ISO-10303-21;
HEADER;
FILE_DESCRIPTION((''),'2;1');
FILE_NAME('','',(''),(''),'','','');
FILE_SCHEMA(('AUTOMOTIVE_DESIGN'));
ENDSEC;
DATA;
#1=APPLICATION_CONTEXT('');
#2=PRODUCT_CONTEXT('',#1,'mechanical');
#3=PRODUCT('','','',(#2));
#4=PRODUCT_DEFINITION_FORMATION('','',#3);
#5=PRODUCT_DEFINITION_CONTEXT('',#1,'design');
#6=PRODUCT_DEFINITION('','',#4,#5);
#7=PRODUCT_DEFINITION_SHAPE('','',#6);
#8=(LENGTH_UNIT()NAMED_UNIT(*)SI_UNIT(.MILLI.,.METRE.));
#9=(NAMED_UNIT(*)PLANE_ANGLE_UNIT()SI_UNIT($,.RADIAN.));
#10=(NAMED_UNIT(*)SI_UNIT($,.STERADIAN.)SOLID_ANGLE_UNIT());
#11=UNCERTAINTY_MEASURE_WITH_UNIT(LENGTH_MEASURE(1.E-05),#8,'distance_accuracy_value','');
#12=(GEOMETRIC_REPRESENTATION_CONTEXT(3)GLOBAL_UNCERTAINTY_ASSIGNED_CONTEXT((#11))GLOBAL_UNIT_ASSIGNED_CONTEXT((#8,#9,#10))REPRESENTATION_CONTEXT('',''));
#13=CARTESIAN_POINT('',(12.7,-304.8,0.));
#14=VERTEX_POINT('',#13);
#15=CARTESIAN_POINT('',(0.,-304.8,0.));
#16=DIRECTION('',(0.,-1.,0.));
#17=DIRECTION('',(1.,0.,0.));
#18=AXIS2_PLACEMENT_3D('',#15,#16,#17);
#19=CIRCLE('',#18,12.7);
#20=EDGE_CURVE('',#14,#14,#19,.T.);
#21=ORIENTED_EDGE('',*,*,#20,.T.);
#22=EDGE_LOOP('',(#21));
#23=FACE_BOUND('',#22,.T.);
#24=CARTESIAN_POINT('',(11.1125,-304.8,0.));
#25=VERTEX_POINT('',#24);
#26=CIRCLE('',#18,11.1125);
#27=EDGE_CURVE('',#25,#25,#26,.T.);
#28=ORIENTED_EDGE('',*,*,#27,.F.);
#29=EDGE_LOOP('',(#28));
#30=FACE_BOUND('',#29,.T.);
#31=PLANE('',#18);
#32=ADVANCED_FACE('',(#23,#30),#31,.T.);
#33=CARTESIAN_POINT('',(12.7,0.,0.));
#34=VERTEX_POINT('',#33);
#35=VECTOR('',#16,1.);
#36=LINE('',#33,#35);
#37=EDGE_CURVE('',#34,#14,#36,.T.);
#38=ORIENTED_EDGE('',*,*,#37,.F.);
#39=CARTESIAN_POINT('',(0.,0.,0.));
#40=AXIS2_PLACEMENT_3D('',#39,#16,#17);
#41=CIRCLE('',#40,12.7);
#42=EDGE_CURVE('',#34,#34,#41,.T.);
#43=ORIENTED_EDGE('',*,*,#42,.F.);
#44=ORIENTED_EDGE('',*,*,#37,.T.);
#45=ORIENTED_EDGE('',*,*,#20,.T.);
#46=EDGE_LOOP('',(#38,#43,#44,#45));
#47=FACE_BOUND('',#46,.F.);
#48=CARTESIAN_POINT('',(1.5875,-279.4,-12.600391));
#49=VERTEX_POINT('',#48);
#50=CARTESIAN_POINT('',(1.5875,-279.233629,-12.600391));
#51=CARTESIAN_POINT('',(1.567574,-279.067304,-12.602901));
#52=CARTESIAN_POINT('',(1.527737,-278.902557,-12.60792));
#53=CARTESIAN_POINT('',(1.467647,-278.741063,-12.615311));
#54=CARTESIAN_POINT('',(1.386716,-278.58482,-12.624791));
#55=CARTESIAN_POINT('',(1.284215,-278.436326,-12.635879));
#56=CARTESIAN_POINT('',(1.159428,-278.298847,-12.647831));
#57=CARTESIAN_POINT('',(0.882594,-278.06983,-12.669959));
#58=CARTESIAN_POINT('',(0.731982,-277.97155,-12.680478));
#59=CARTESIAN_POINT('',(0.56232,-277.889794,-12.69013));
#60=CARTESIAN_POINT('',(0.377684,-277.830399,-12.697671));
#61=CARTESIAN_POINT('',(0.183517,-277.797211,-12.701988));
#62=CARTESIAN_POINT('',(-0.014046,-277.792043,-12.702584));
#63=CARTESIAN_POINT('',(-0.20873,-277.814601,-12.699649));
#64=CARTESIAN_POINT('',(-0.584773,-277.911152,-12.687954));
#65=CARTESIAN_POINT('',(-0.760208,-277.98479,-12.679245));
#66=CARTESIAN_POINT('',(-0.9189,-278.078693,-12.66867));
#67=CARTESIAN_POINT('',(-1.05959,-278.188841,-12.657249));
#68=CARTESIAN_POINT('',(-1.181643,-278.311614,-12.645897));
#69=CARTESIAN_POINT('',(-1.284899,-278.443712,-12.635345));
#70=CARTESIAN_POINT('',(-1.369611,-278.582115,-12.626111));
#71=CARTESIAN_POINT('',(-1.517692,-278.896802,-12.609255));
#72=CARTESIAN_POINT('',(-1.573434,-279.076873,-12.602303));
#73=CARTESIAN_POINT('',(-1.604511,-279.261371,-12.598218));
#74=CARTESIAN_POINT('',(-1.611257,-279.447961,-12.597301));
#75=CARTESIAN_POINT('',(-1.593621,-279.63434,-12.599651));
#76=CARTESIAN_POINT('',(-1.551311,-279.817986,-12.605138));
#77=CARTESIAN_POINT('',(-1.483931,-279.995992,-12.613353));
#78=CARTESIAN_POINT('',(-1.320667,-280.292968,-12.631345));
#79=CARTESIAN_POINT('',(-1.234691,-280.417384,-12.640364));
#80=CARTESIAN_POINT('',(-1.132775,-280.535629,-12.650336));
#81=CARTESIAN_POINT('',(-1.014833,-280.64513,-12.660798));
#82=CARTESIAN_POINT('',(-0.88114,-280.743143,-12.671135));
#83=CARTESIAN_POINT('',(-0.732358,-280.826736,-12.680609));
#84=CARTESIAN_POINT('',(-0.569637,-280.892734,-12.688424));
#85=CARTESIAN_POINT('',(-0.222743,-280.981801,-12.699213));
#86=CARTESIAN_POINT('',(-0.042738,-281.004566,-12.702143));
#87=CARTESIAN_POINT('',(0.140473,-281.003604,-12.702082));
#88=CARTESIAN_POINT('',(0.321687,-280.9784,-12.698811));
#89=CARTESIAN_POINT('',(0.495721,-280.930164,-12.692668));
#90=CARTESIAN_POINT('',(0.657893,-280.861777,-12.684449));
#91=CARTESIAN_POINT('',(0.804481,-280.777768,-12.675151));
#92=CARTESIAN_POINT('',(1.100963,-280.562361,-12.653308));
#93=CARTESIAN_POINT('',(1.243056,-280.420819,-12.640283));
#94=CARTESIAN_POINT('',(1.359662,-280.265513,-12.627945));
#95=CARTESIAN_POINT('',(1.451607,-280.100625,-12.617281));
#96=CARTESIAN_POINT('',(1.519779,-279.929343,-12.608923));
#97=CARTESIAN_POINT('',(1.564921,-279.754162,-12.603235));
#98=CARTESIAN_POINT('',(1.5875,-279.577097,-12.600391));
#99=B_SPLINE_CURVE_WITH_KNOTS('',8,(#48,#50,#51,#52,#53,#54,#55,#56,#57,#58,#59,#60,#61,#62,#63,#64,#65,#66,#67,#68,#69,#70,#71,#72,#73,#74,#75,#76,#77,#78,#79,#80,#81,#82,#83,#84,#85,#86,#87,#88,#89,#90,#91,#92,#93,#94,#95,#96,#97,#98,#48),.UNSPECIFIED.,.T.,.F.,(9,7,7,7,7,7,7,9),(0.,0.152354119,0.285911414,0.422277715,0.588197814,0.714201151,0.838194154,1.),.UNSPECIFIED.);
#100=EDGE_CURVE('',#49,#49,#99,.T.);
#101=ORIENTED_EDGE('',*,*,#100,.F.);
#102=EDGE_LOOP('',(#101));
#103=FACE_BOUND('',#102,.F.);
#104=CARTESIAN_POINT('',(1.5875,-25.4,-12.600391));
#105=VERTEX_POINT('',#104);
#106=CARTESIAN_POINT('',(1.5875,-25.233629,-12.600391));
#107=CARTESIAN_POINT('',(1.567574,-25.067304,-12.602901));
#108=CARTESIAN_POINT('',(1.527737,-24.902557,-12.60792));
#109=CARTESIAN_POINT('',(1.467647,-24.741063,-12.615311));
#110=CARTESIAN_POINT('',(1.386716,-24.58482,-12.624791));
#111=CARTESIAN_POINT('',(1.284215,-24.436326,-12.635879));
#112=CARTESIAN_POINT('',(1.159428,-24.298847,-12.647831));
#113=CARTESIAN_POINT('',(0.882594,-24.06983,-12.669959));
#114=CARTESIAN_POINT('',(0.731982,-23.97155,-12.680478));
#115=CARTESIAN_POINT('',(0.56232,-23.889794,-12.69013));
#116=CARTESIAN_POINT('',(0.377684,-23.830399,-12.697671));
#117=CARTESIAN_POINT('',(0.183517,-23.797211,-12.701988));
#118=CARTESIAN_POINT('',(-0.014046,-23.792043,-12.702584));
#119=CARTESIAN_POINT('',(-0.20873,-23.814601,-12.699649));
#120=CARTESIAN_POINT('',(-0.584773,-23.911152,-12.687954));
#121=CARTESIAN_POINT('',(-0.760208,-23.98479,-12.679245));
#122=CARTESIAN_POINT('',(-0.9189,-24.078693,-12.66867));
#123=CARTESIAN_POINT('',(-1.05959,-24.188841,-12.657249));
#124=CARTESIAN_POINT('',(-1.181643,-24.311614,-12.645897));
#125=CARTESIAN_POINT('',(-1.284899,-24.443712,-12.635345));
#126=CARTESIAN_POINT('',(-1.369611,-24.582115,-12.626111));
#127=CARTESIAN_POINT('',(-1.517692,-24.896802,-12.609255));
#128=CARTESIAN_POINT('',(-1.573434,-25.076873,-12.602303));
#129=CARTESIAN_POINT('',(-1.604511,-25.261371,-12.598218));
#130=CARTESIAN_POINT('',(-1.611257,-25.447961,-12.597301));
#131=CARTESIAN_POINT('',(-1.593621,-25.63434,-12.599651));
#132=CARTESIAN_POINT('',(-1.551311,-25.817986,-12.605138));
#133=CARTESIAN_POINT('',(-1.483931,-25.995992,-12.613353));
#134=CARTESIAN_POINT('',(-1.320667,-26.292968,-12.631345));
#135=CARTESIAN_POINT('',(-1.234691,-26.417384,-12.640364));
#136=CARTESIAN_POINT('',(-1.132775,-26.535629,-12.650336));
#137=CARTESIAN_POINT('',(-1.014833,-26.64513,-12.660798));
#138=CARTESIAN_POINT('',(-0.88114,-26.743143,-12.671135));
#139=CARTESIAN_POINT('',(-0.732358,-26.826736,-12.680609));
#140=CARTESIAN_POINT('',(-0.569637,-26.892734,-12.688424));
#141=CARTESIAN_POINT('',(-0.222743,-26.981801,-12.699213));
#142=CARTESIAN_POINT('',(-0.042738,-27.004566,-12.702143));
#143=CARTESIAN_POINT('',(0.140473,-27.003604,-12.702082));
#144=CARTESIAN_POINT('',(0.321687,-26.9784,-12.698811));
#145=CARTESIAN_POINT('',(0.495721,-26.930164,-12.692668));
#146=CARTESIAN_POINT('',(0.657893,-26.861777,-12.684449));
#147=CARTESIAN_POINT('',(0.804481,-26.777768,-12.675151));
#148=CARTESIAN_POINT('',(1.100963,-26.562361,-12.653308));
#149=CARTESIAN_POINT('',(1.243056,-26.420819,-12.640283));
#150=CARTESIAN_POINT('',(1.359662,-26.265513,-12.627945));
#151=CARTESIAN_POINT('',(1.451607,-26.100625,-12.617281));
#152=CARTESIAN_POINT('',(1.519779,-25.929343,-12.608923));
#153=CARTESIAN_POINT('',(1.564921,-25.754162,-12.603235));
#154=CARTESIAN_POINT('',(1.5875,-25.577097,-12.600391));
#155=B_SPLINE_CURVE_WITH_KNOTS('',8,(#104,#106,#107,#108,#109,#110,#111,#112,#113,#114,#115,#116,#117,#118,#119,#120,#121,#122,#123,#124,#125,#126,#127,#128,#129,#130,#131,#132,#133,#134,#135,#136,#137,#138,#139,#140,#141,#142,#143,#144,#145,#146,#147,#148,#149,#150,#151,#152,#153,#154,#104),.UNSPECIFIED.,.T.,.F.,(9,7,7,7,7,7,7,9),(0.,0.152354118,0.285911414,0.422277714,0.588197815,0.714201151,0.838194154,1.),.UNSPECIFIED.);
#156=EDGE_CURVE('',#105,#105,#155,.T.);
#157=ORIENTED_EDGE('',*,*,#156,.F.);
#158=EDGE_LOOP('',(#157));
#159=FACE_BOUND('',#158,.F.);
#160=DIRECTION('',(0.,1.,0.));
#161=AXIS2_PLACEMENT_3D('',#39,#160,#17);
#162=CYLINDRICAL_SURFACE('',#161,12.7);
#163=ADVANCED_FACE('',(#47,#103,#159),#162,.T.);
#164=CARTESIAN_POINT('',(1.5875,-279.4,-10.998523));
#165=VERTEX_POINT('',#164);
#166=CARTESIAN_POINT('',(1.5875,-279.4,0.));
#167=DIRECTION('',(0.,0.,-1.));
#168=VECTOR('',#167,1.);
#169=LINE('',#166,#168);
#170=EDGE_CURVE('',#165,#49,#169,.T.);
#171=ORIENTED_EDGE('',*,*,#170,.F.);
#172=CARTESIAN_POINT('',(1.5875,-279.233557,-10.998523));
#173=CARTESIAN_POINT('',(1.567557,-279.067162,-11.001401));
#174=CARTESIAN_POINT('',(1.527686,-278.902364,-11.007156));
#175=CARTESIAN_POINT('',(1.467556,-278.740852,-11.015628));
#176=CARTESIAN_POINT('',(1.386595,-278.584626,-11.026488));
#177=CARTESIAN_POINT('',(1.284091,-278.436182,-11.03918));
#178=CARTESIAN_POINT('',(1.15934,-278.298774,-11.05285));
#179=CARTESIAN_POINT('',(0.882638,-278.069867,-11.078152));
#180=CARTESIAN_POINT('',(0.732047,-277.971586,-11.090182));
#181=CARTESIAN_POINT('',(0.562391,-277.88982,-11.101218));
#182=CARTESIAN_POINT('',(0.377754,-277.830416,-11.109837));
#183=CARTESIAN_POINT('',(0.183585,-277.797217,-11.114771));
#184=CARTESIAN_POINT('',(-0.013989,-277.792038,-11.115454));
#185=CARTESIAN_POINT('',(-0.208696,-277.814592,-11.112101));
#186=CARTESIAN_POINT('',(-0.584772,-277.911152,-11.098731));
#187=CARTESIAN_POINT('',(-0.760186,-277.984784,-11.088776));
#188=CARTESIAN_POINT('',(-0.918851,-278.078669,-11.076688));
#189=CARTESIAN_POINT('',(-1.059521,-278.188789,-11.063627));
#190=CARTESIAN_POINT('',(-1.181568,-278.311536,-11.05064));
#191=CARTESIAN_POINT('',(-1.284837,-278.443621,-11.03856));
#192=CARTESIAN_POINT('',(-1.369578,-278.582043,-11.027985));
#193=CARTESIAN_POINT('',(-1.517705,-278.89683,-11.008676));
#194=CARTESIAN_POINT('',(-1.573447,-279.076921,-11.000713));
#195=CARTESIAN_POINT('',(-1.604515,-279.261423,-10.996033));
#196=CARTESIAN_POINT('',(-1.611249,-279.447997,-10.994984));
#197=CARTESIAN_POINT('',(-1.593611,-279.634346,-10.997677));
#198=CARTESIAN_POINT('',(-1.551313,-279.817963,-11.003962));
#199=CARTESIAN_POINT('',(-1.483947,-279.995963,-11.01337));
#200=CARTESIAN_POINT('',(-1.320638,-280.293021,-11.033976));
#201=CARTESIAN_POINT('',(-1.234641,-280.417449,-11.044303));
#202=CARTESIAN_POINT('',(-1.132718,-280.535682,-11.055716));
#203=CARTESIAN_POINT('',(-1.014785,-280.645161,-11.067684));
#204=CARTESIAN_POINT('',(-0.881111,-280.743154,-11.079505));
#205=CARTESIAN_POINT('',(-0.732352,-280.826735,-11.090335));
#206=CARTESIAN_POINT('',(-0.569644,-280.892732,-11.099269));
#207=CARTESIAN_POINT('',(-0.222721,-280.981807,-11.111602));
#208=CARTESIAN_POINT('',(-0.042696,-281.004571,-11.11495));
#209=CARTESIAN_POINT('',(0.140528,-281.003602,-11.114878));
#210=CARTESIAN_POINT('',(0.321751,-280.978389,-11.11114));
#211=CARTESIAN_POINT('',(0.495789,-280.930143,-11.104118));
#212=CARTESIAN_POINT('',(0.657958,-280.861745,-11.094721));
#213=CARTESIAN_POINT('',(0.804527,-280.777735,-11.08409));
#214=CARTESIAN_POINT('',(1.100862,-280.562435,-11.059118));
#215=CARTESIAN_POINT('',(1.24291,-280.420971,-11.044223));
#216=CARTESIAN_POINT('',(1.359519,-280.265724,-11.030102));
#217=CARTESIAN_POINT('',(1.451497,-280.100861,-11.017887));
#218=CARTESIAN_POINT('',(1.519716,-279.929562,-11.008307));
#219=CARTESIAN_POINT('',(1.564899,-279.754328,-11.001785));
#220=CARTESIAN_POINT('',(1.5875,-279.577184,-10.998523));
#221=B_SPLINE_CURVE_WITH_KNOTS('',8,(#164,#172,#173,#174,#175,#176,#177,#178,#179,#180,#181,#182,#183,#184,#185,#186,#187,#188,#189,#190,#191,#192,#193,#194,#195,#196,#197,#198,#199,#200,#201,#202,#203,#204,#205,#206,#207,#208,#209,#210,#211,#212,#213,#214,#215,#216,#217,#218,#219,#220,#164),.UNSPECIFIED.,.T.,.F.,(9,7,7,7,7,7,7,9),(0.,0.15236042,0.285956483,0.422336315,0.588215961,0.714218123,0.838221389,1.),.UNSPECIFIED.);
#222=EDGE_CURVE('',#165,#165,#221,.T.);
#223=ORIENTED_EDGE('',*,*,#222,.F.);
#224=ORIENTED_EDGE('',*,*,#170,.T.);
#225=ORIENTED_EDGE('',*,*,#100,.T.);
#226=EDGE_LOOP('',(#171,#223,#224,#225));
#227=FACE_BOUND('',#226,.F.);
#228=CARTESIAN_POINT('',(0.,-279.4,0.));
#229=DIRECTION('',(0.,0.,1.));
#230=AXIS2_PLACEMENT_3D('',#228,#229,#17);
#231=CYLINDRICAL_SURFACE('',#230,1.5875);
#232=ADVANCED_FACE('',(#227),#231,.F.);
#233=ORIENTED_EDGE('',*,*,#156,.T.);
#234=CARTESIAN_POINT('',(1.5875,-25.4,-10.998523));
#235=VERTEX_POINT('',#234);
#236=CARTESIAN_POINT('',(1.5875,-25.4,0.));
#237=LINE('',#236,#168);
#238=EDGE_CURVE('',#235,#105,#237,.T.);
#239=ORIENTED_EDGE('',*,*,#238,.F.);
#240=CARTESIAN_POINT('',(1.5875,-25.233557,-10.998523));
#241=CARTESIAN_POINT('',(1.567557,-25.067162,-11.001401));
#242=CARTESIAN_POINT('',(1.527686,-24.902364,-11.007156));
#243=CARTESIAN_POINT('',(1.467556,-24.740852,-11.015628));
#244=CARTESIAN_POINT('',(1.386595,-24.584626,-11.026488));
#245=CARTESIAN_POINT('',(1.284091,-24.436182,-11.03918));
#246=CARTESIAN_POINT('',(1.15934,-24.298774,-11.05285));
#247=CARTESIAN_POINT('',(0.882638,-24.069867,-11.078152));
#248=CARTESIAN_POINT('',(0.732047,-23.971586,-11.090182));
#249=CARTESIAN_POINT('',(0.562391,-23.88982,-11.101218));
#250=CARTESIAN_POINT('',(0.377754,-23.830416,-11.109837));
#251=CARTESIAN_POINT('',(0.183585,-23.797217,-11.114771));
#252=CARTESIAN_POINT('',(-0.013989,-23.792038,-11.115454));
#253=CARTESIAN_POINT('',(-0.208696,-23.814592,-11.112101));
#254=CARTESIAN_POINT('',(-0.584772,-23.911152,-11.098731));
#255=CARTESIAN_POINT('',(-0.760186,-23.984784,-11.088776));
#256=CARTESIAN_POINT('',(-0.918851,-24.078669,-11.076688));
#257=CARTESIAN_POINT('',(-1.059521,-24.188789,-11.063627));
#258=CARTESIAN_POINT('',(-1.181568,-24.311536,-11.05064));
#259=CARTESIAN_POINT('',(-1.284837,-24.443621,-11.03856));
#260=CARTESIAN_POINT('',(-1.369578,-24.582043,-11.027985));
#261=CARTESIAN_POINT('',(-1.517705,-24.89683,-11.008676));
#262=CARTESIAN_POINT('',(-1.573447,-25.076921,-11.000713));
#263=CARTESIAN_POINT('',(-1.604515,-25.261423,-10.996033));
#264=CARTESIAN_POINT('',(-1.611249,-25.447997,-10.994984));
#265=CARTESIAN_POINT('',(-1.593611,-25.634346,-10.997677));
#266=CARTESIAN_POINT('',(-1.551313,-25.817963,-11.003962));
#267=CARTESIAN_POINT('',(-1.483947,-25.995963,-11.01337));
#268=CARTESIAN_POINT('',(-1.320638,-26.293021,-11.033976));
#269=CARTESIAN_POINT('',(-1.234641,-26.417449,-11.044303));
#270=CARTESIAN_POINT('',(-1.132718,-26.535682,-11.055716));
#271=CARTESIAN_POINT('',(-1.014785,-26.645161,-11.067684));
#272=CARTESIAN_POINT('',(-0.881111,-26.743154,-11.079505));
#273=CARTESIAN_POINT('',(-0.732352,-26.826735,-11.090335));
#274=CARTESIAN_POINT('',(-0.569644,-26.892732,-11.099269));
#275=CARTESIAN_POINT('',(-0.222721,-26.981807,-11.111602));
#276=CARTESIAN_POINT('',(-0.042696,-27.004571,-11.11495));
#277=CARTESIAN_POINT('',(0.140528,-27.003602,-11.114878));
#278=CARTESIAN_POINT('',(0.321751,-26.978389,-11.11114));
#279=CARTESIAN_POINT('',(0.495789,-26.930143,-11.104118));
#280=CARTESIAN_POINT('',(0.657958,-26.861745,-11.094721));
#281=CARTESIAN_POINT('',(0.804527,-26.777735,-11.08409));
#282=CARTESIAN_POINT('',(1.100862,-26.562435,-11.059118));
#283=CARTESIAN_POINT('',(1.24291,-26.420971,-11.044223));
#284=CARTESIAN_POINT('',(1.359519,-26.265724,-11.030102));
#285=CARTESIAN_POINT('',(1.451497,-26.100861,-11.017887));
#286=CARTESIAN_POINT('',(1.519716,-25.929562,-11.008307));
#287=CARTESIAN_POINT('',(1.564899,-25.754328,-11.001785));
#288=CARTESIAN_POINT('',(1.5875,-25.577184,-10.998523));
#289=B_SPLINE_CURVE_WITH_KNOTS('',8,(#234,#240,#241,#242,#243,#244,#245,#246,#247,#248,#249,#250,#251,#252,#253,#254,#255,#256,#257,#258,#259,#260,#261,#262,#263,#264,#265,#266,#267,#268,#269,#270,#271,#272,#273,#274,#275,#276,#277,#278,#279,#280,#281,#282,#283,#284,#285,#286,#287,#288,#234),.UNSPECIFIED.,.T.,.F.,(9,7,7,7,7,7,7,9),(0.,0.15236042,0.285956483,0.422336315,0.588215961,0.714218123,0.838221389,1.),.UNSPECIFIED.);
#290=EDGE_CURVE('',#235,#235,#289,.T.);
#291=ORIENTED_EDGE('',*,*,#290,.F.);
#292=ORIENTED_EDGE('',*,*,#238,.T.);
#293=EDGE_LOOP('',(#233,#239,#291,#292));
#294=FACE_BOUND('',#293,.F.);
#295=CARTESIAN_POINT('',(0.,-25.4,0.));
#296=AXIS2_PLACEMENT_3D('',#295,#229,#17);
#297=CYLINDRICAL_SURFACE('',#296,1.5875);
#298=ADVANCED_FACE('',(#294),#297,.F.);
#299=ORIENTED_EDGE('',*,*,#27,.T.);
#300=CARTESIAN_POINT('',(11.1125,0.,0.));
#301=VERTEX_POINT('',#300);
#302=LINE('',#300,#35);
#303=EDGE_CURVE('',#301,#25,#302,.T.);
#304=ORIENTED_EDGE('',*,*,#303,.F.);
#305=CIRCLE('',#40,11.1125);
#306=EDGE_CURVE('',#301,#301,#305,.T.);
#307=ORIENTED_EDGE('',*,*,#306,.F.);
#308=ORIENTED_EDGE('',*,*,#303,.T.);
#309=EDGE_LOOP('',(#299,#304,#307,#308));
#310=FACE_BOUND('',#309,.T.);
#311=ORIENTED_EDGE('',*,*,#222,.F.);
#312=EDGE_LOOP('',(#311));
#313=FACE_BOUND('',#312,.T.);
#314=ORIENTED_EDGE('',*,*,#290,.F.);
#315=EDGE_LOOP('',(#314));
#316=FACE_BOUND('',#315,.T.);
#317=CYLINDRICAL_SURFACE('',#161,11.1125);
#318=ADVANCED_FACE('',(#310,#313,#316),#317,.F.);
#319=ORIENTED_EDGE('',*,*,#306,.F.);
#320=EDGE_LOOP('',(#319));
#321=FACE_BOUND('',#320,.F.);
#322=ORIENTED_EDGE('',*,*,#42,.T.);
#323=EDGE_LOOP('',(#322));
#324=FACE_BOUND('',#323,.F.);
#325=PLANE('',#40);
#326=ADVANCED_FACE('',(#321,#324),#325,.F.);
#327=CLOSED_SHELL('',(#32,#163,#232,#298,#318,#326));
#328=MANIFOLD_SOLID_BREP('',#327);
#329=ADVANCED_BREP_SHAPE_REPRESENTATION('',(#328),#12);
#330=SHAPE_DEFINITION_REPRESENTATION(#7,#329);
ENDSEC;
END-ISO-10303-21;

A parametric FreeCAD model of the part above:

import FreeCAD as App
import Part
import Sketcher
Q = App.Units.Quantity

doc = App.newDocument("Part")
body = doc.addObject("PartDesign::Body", "Body")

# Sketch on XZ plane
sketch1 = body.newObject("Sketcher::SketchObject", "Sketch")
sketch1.AttachmentSupport = (doc.getObject("XZ_Plane"), [""])
sketch1.MapMode = "FlatFace"
sketch1.addGeometry([
    Part.Circle(App.Vector(0, 0, 0), App.Vector(0, 0, 1), 13),
    Part.Circle(App.Vector(0, 0, 0), App.Vector(0, 0, 1), 11),
], False)
sketch1.addConstraint([
    Sketcher.Constraint("Coincident", 0, 3, -1, 1),
    Sketcher.Constraint("Coincident", 1, 3, -1, 1),
    Sketcher.Constraint("Diameter", 0, Q("1 in")),
    Sketcher.Constraint("Diameter", 1, Q("0.875 in")),
])
pad1 = body.newObject("PartDesign::Pad", "Pad")
pad1.Profile = sketch1
pad1.Length = Q("12 in")

# Sketch on XY plane
sketch2 = body.newObject("Sketcher::SketchObject", "Sketch001")
sketch2.AttachmentSupport = (doc.getObject("XY_Plane"), [""])
sketch2.MapMode = "FlatFace"
sketch2.addGeometry([
    Part.Circle(App.Vector(0, -25.4, 0), App.Vector(0, 0, 1), 1.6),
    Part.Circle(App.Vector(0, -279.4, 0), App.Vector(0, 0, 1), 1.6),
], False)
sketch2.addConstraint([
    Sketcher.Constraint("Equal", 0, 1),
    Sketcher.Constraint("PointOnObject", 0, 3, -2),
    Sketcher.Constraint("PointOnObject", 1, 3, -2),
    Sketcher.Constraint("Diameter", 0, Q("0.125 in")),
    Sketcher.Constraint("DistanceY", 0, 3, -1, 1, Q("1 in")),
    Sketcher.Constraint("DistanceY", 1, 3, -1, 1, Q("11 in")),
])
pocket1 = body.newObject("PartDesign::Pocket", "Pocket")
pocket1.Profile = sketch2
pocket1.Type = "ThroughAll"

doc.recompute()
